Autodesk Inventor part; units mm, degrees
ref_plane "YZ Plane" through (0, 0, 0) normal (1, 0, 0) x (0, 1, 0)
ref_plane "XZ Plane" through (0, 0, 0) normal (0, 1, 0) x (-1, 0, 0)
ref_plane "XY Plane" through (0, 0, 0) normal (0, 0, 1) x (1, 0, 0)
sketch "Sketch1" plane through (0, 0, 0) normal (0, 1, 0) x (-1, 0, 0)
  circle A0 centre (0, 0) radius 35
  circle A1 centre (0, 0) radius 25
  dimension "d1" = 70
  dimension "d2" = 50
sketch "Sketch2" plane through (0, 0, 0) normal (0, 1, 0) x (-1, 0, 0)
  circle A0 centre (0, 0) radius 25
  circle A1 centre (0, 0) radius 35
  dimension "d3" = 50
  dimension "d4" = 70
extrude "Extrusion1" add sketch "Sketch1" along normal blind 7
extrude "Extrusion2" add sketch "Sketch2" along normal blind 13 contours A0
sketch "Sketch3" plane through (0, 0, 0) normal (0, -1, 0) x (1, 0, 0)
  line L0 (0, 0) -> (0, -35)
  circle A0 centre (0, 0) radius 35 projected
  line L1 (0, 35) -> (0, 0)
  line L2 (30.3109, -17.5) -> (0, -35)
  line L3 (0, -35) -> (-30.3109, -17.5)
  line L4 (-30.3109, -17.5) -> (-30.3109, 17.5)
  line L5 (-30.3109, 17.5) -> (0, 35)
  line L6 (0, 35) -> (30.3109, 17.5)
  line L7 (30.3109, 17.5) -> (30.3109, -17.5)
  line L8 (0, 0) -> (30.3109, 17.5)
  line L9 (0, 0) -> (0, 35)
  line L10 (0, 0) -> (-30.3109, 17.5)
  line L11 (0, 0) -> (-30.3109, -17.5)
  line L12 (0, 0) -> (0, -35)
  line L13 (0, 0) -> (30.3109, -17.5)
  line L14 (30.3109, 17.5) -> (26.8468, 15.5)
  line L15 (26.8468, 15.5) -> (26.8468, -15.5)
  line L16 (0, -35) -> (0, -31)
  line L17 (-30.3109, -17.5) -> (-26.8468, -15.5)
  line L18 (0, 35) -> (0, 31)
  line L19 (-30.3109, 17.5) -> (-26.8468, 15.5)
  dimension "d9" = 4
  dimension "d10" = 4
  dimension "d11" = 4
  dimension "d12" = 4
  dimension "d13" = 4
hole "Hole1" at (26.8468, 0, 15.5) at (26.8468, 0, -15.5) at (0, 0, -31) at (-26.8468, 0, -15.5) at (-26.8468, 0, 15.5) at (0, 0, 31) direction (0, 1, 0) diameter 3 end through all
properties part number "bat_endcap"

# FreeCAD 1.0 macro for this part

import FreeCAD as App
import Part
import Sketcher

doc = App.newDocument("Part")
body = doc.addObject("PartDesign::Body", "Body")

sketch1 = body.newObject("Sketcher::SketchObject", "Sketch")
sketch1.AttachmentSupport = (doc.getObject("XZ_Plane"), [""])
sketch1.MapMode = "FlatFace"
sketch1.addGeometry([
    Part.Circle(App.Vector(0, 0, 0), App.Vector(0, 0, 1), 35),
    Part.Circle(App.Vector(0, 0, 0), App.Vector(0, 0, 1), 25),
], False)
sketch1.addConstraint([
    Sketcher.Constraint("Coincident", 0, 3, -1, 1),
    Sketcher.Constraint("Coincident", 1, 3, -1, 1),
    Sketcher.Constraint("Diameter", 0, 70.0),
    Sketcher.Constraint("Diameter", 1, 50.0),
])
pad1 = body.newObject("PartDesign::Pad", "Pad")
pad1.Profile = sketch1
pad1.Length = 7
pad1.Reversed = True

sketch2 = body.newObject("Sketcher::SketchObject", "Sketch001")
sketch2.AttachmentSupport = (doc.getObject("XZ_Plane"), [""])
sketch2.MapMode = "FlatFace"
sketch2.addGeometry(Part.Circle(App.Vector(0, 0, 0), App.Vector(0, 0, 1), 25), False)
sketch2.addConstraint([
    Sketcher.Constraint("Coincident", 0, 3, -1, 1),
    Sketcher.Constraint("Diameter", 0, 50.0),
])
pad2 = body.newObject("PartDesign::Pad", "Pad001")
pad2.Profile = sketch2
pad2.Length = 13
pad2.Reversed = True

sketch3 = body.newObject("Sketcher::SketchObject", "Sketch002")
sketch3.AttachmentSupport = (doc.getObject("XZ_Plane"), [""])
sketch3.MapMode = "FlatFace"
sketch3.addGeometry([
    Part.Circle(App.Vector(26.8, 15.5, 0), App.Vector(0, 0, 1), 1.5),
    Part.Circle(App.Vector(26.8, -15.5, 0), App.Vector(0, 0, 1), 1.5),
    Part.Circle(App.Vector(0, -31, 0), App.Vector(0, 0, 1), 1.5),
    Part.Circle(App.Vector(-26.8, -15.5, 0), App.Vector(0, 0, 1), 1.5),
    Part.Circle(App.Vector(-26.8, 15.5, 0), App.Vector(0, 0, 1), 1.5),
    Part.Circle(App.Vector(0, 31, 0), App.Vector(0, 0, 1), 1.5),
], False)
sketch3.addConstraint([
    Sketcher.Constraint("Equal", 0, 1),
    Sketcher.Constraint("Equal", 1, 2),
    Sketcher.Constraint("Equal", 2, 3),
    Sketcher.Constraint("Equal", 3, 4),
    Sketcher.Constraint("Equal", 4, 5),
    Sketcher.Constraint("Symmetric", 0, 3, 3, 3, -1, 1),
    Sketcher.Constraint("Symmetric", 1, 3, 4, 3, -1, 1),
    Sketcher.Constraint("Symmetric", 2, 3, 5, 3, -1, 1),
    Sketcher.Constraint("Symmetric", 1, 3, 3, 3, -2),
    Sketcher.Constraint("PointOnObject", 2, 3, -2),
    Sketcher.Constraint("Diameter", 0, 3.0),
    Sketcher.Constraint("DistanceY", 2, 3, -1, 1, 31.0),
    Sketcher.Constraint("DistanceY", 1, 3, 0, 3, 31.0),
    Sketcher.Constraint("DistanceX", -1, 1, 0, 3, 26.8468),
])
doc.recompute()
hole = body.newObject("PartDesign::Hole", "Hole")
hole.Profile = sketch3
hole.ThreadType = "None"
hole.Diameter = 3
hole.DepthType = "ThroughAll"

doc.recompute()
